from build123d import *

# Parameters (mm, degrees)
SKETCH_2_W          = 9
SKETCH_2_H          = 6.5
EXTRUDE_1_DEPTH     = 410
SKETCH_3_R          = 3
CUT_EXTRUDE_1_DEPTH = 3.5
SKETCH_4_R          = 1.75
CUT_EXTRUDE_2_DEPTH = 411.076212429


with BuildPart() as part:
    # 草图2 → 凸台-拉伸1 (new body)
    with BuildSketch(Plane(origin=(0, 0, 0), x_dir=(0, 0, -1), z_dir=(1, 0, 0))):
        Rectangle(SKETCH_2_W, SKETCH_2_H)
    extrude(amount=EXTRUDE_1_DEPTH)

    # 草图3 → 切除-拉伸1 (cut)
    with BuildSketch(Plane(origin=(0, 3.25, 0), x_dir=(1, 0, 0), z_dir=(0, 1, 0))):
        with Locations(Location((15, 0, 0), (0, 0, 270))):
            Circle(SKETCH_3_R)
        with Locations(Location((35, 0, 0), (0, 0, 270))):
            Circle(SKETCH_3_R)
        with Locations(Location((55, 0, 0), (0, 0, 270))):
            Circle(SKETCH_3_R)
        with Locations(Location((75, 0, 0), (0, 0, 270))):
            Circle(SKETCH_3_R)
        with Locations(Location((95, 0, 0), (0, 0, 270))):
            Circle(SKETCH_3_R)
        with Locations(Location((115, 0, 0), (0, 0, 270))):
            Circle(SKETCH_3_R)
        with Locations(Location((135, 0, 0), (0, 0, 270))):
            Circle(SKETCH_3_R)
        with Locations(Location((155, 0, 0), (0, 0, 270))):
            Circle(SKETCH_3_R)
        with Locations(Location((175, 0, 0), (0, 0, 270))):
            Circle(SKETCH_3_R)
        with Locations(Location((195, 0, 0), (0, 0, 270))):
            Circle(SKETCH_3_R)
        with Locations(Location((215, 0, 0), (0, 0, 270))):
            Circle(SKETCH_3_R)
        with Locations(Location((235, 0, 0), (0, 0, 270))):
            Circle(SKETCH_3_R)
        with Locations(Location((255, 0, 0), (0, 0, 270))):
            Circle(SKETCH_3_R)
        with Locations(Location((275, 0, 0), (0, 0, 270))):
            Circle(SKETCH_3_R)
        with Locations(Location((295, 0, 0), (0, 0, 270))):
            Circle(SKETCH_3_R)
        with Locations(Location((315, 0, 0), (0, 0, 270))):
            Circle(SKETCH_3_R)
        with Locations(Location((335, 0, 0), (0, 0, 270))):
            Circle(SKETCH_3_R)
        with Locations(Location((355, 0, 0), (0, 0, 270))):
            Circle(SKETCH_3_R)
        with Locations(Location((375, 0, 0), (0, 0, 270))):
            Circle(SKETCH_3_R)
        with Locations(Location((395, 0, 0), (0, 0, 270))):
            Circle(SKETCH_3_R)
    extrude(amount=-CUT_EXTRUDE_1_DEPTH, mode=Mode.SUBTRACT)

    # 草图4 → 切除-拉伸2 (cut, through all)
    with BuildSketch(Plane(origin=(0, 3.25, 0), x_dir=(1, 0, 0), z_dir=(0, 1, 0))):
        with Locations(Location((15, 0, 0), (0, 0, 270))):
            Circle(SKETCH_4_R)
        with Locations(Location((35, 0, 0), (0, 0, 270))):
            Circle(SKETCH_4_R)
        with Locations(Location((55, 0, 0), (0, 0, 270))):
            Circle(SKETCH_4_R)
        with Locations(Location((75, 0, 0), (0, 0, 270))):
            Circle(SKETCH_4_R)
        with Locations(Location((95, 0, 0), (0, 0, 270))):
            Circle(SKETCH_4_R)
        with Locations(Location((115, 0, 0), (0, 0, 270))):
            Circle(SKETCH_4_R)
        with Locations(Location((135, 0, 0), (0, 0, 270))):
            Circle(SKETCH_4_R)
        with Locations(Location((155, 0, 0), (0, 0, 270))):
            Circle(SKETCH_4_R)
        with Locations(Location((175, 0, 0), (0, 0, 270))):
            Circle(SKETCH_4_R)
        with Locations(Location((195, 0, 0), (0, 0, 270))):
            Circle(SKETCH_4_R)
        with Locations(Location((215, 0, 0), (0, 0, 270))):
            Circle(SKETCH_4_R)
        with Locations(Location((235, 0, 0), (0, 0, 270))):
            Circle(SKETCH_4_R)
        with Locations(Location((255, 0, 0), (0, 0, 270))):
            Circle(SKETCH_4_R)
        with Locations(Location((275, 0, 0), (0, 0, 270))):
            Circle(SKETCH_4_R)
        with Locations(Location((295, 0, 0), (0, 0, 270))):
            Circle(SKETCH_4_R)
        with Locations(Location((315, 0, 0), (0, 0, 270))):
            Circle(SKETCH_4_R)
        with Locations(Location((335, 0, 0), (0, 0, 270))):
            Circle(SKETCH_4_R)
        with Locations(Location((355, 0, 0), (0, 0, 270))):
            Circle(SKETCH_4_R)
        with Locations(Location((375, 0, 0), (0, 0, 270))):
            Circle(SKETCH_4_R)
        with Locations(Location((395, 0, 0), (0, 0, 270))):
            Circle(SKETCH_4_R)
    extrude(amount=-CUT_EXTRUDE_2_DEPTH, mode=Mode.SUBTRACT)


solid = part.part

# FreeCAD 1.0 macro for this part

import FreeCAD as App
import Part
import Sketcher

V = App.Vector
Q = App.Units.Quantity

doc = App.newDocument("Part")
body = doc.addObject("PartDesign::Body", "Body")

sketch1 = doc.addObject("Sketcher::SketchObject", "Sketch")
body.addObject(sketch1)
sketch1.AttachmentSupport = (doc.YZ_Plane, [""])
sketch1.MapMode = "FlatFace"
sketch1.addGeometry([
    Part.LineSegment(V(3, 4, 0), V(-3, 4, 0)),
    Part.LineSegment(V(-3, 4, 0), V(-3, -4, 0)),
    Part.LineSegment(V(-3, -4, 0), V(3, -4, 0)),
    Part.LineSegment(V(3, -4, 0), V(3, 4, 0)),
], False)
sketch1.addConstraint([
    Sketcher.Constraint("Coincident", 0, 2, 1, 1),
    Sketcher.Constraint("Coincident", 1, 2, 2, 1),
    Sketcher.Constraint("Coincident", 2, 2, 3, 1),
    Sketcher.Constraint("Coincident", 3, 2, 0, 1),
    Sketcher.Constraint("Horizontal", 0),
    Sketcher.Constraint("Vertical", 1),
    Sketcher.Constraint("Horizontal", 2),
    Sketcher.Constraint("Vertical", 3),
    Sketcher.Constraint("Symmetric", 0, 2, 2, 2, -1, 1),
    Sketcher.Constraint("DistanceY", 1, 2, 1, 1, Q("9 mm")),
    Sketcher.Constraint("DistanceX", 0, 2, 0, 1, Q("6.5 mm")),
])
pad1 = doc.addObject("PartDesign::Pad", "Pad")
body.addObject(pad1)
pad1.Profile = sketch1
pad1.Length = 410

sketch2 = doc.addObject("Sketcher::SketchObject", "Sketch001")
body.addObject(sketch2)
sketch2.AttachmentSupport = (doc.XZ_Plane, [""])
sketch2.MapMode = "FlatFace"
sketch2.AttachmentOffset = App.Placement(V(0, 0, -3.25), App.Rotation())
sketch2.addGeometry([
    Part.Circle(V(15, 0, 0), V(0, 0, 1), 3),
    Part.Circle(V(35, 0, 0), V(0, 0, 1), 3),
    Part.Circle(V(55, 0, 0), V(0, 0, 1), 3),
    Part.Circle(V(75, 0, 0), V(0, 0, 1), 3),
    Part.Circle(V(95, 0, 0), V(0, 0, 1), 3),
    Part.Circle(V(115, 0, 0), V(0, 0, 1), 3),
    Part.Circle(V(135, 0, 0), V(0, 0, 1), 3),
    Part.Circle(V(155, 0, 0), V(0, 0, 1), 3),
    Part.Circle(V(175, 0, 0), V(0, 0, 1), 3),
    Part.Circle(V(195, 0, 0), V(0, 0, 1), 3),
    Part.Circle(V(215, 0, 0), V(0, 0, 1), 3),
    Part.Circle(V(235, 0, 0), V(0, 0, 1), 3),
    Part.Circle(V(255, 0, 0), V(0, 0, 1), 3),
    Part.Circle(V(275, 0, 0), V(0, 0, 1), 3),
    Part.Circle(V(295, 0, 0), V(0, 0, 1), 3),
    Part.Circle(V(315, 0, 0), V(0, 0, 1), 3),
    Part.Circle(V(335, 0, 0), V(0, 0, 1), 3),
    Part.Circle(V(355, 0, 0), V(0, 0, 1), 3),
    Part.Circle(V(375, 0, 0), V(0, 0, 1), 3),
    Part.Circle(V(395, 0, 0), V(0, 0, 1), 3),
], False)
sketch2.addConstraint([
    Sketcher.Constraint("Equal", 0, 1),
    Sketcher.Constraint("Equal", 1, 2),
    Sketcher.Constraint("Equal", 2, 3),
    Sketcher.Constraint("Equal", 3, 4),
    Sketcher.Constraint("Equal", 4, 5),
    Sketcher.Constraint("Equal", 5, 6),
    Sketcher.Constraint("Equal", 6, 7),
    Sketcher.Constraint("Equal", 7, 8),
    Sketcher.Constraint("Equal", 8, 9),
    Sketcher.Constraint("Equal", 9, 10),
    Sketcher.Constraint("Equal", 10, 11),
    Sketcher.Constraint("Equal", 11, 12),
    Sketcher.Constraint("Equal", 12, 13),
    Sketcher.Constraint("Equal", 13, 14),
    Sketcher.Constraint("Equal", 14, 15),
    Sketcher.Constraint("Equal", 15, 16),
    Sketcher.Constraint("Equal", 16, 17),
    Sketcher.Constraint("Equal", 17, 18),
    Sketcher.Constraint("Equal", 18, 19),
    Sketcher.Constraint("PointOnObject", 0, 3, -1),
    Sketcher.Constraint("PointOnObject", 1, 3, -1),
    Sketcher.Constraint("PointOnObject", 2, 3, -1),
    Sketcher.Constraint("PointOnObject", 3, 3, -1),
    Sketcher.Constraint("PointOnObject", 4, 3, -1),
    Sketcher.Constraint("PointOnObject", 5, 3, -1),
    Sketcher.Constraint("PointOnObject", 6, 3, -1),
    Sketcher.Constraint("PointOnObject", 7, 3, -1),
    Sketcher.Constraint("PointOnObject", 8, 3, -1),
    Sketcher.Constraint("PointOnObject", 9, 3, -1),
    Sketcher.Constraint("PointOnObject", 10, 3, -1),
    Sketcher.Constraint("PointOnObject", 11, 3, -1),
    Sketcher.Constraint("PointOnObject", 12, 3, -1),
    Sketcher.Constraint("PointOnObject", 13, 3, -1),
    Sketcher.Constraint("PointOnObject", 14, 3, -1),
    Sketcher.Constraint("PointOnObject", 15, 3, -1),
    Sketcher.Constraint("PointOnObject", 16, 3, -1),
    Sketcher.Constraint("PointOnObject", 17, 3, -1),
    Sketcher.Constraint("PointOnObject", 18, 3, -1),
    Sketcher.Constraint("PointOnObject", 19, 3, -1),
    Sketcher.Constraint("Diameter", 0, Q("6 mm")),
    Sketcher.Constraint("DistanceX", -1, 1, 0, 3, Q("15 mm")),
    Sketcher.Constraint("DistanceX", -1, 1, 1, 3, Q("35 mm")),
    Sketcher.Constraint("DistanceX", -1, 1, 2, 3, Q("55 mm")),
    Sketcher.Constraint("DistanceX", -1, 1, 3, 3, Q("75 mm")),
    Sketcher.Constraint("DistanceX", -1, 1, 4, 3, Q("95 mm")),
    Sketcher.Constraint("DistanceX", -1, 1, 5, 3, Q("115 mm")),
    Sketcher.Constraint("DistanceX", -1, 1, 6, 3, Q("135 mm")),
    Sketcher.Constraint("DistanceX", -1, 1, 7, 3, Q("155 mm")),
    Sketcher.Constraint("DistanceX", -1, 1, 8, 3, Q("175 mm")),
    Sketcher.Constraint("DistanceX", -1, 1, 9, 3, Q("195 mm")),
    Sketcher.Constraint("DistanceX", -1, 1, 10, 3, Q("215 mm")),
    Sketcher.Constraint("DistanceX", -1, 1, 11, 3, Q("235 mm")),
    Sketcher.Constraint("DistanceX", -1, 1, 12, 3, Q("255 mm")),
    Sketcher.Constraint("DistanceX", -1, 1, 13, 3, Q("275 mm")),
    Sketcher.Constraint("DistanceX", -1, 1, 14, 3, Q("295 mm")),
    Sketcher.Constraint("DistanceX", -1, 1, 15, 3, Q("315 mm")),
    Sketcher.Constraint("DistanceX", -1, 1, 16, 3, Q("335 mm")),
    Sketcher.Constraint("DistanceX", -1, 1, 17, 3, Q("355 mm")),
    Sketcher.Constraint("DistanceX", -1, 1, 18, 3, Q("375 mm")),
    Sketcher.Constraint("DistanceX", -1, 1, 19, 3, Q("395 mm")),
])
pocket1 = doc.addObject("PartDesign::Pocket", "Pocket")
body.addObject(pocket1)
pocket1.Profile = sketch2
pocket1.Length = 3.5
pocket1.Reversed = True

sketch3 = doc.addObject("Sketcher::SketchObject", "Sketch002")
body.addObject(sketch3)
sketch3.AttachmentSupport = (doc.XZ_Plane, [""])
sketch3.MapMode = "FlatFace"
sketch3.AttachmentOffset = App.Placement(V(0, 0, -3.25), App.Rotation())
sketch3.addGeometry([
    Part.Circle(V(15, 0, 0), V(0, 0, 1), 1.8),
    Part.Circle(V(35, 0, 0), V(0, 0, 1), 1.8),
    Part.Circle(V(55, 0, 0), V(0, 0, 1), 1.8),
    Part.Circle(V(75, 0, 0), V(0, 0, 1), 1.8),
    Part.Circle(V(95, 0, 0), V(0, 0, 1), 1.8),
    Part.Circle(V(115, 0, 0), V(0, 0, 1), 1.8),
    Part.Circle(V(135, 0, 0), V(0, 0, 1), 1.8),
    Part.Circle(V(155, 0, 0), V(0, 0, 1), 1.8),
    Part.Circle(V(175, 0, 0), V(0, 0, 1), 1.8),
    Part.Circle(V(195, 0, 0), V(0, 0, 1), 1.8),
    Part.Circle(V(215, 0, 0), V(0, 0, 1), 1.8),
    Part.Circle(V(235, 0, 0), V(0, 0, 1), 1.8),
    Part.Circle(V(255, 0, 0), V(0, 0, 1), 1.8),
    Part.Circle(V(275, 0, 0), V(0, 0, 1), 1.8),
    Part.Circle(V(295, 0, 0), V(0, 0, 1), 1.8),
    Part.Circle(V(315, 0, 0), V(0, 0, 1), 1.8),
    Part.Circle(V(335, 0, 0), V(0, 0, 1), 1.8),
    Part.Circle(V(355, 0, 0), V(0, 0, 1), 1.8),
    Part.Circle(V(375, 0, 0), V(0, 0, 1), 1.8),
    Part.Circle(V(395, 0, 0), V(0, 0, 1), 1.8),
], False)
sketch3.addConstraint([
    Sketcher.Constraint("Equal", 0, 1),
    Sketcher.Constraint("Equal", 1, 2),
    Sketcher.Constraint("Equal", 2, 3),
    Sketcher.Constraint("Equal", 3, 4),
    Sketcher.Constraint("Equal", 4, 5),
    Sketcher.Constraint("Equal", 5, 6),
    Sketcher.Constraint("Equal", 6, 7),
    Sketcher.Constraint("Equal", 7, 8),
    Sketcher.Constraint("Equal", 8, 9),
    Sketcher.Constraint("Equal", 9, 10),
    Sketcher.Constraint("Equal", 10, 11),
    Sketcher.Constraint("Equal", 11, 12),
    Sketcher.Constraint("Equal", 12, 13),
    Sketcher.Constraint("Equal", 13, 14),
    Sketcher.Constraint("Equal", 14, 15),
    Sketcher.Constraint("Equal", 15, 16),
    Sketcher.Constraint("Equal", 16, 17),
    Sketcher.Constraint("Equal", 17, 18),
    Sketcher.Constraint("Equal", 18, 19),
    Sketcher.Constraint("PointOnObject", 0, 3, -1),
    Sketcher.Constraint("PointOnObject", 1, 3, -1),
    Sketcher.Constraint("PointOnObject", 2, 3, -1),
    Sketcher.Constraint("PointOnObject", 3, 3, -1),
    Sketcher.Constraint("PointOnObject", 4, 3, -1),
    Sketcher.Constraint("PointOnObject", 5, 3, -1),
    Sketcher.Constraint("PointOnObject", 6, 3, -1),
    Sketcher.Constraint("PointOnObject", 7, 3, -1),
    Sketcher.Constraint("PointOnObject", 8, 3, -1),
    Sketcher.Constraint("PointOnObject", 9, 3, -1),
    Sketcher.Constraint("PointOnObject", 10, 3, -1),
    Sketcher.Constraint("PointOnObject", 11, 3, -1),
    Sketcher.Constraint("PointOnObject", 12, 3, -1),
    Sketcher.Constraint("PointOnObject", 13, 3, -1),
    Sketcher.Constraint("PointOnObject", 14, 3, -1),
    Sketcher.Constraint("PointOnObject", 15, 3, -1),
    Sketcher.Constraint("PointOnObject", 16, 3, -1),
    Sketcher.Constraint("PointOnObject", 17, 3, -1),
    Sketcher.Constraint("PointOnObject", 18, 3, -1),
    Sketcher.Constraint("PointOnObject", 19, 3, -1),
    Sketcher.Constraint("Diameter", 0, Q("3.5 mm")),
    Sketcher.Constraint("DistanceX", -1, 1, 0, 3, Q("15 mm")),
    Sketcher.Constraint("DistanceX", -1, 1, 1, 3, Q("35 mm")),
    Sketcher.Constraint("DistanceX", -1, 1, 2, 3, Q("55 mm")),
    Sketcher.Constraint("DistanceX", -1, 1, 3, 3, Q("75 mm")),
    Sketcher.Constraint("DistanceX", -1, 1, 4, 3, Q("95 mm")),
    Sketcher.Constraint("DistanceX", -1, 1, 5, 3, Q("115 mm")),
    Sketcher.Constraint("DistanceX", -1, 1, 6, 3, Q("135 mm")),
    Sketcher.Constraint("DistanceX", -1, 1, 7, 3, Q("155 mm")),
    Sketcher.Constraint("DistanceX", -1, 1, 8, 3, Q("175 mm")),
    Sketcher.Constraint("DistanceX", -1, 1, 9, 3, Q("195 mm")),
    Sketcher.Constraint("DistanceX", -1, 1, 10, 3, Q("215 mm")),
    Sketcher.Constraint("DistanceX", -1, 1, 11, 3, Q("235 mm")),
    Sketcher.Constraint("DistanceX", -1, 1, 12, 3, Q("255 mm")),
    Sketcher.Constraint("DistanceX", -1, 1, 13, 3, Q("275 mm")),
    Sketcher.Constraint("DistanceX", -1, 1, 14, 3, Q("295 mm")),
    Sketcher.Constraint("DistanceX", -1, 1, 15, 3, Q("315 mm")),
    Sketcher.Constraint("DistanceX", -1, 1, 16, 3, Q("335 mm")),
    Sketcher.Constraint("DistanceX", -1, 1, 17, 3, Q("355 mm")),
    Sketcher.Constraint("DistanceX", -1, 1, 18, 3, Q("375 mm")),
    Sketcher.Constraint("DistanceX", -1, 1, 19, 3, Q("395 mm")),
])
pocket2 = doc.addObject("PartDesign::Pocket", "Pocket001")
body.addObject(pocket2)
pocket2.Profile = sketch3
pocket2.Type = "ThroughAll"
pocket2.Reversed = True

doc.recompute()
